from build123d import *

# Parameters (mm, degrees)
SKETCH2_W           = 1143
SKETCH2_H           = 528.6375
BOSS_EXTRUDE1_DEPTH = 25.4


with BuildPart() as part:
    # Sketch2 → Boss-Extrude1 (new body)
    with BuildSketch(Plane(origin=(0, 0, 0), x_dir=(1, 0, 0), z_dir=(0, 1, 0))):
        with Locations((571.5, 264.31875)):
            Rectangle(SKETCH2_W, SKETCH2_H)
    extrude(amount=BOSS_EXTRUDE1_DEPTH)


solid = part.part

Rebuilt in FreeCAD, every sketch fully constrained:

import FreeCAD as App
import Part
import Sketcher
Q = App.Units.Quantity

doc = App.newDocument("Part")
body = doc.addObject("PartDesign::Body", "Body")

sketch1 = body.newObject("Sketcher::SketchObject", "Sketch")
sketch1.AttachmentSupport = (doc.getObject("XZ_Plane"), [""])
sketch1.MapMode = "FlatFace"
sketch1.addGeometry([
    Part.LineSegment(App.Vector(0, -529, 0), App.Vector(0, 0, 0)),
    Part.LineSegment(App.Vector(0, 0, 0), App.Vector(1143, 0, 0)),
    Part.LineSegment(App.Vector(1143, 0, 0), App.Vector(1143, -529, 0)),
    Part.LineSegment(App.Vector(1143, -529, 0), App.Vector(0, -529, 0)),
], False)
sketch1.addConstraint([
    Sketcher.Constraint("Coincident", 0, 2, 1, 1),
    Sketcher.Constraint("Coincident", 1, 2, 2, 1),
    Sketcher.Constraint("Coincident", 2, 2, 3, 1),
    Sketcher.Constraint("Coincident", 3, 2, 0, 1),
    Sketcher.Constraint("Vertical", 0),
    Sketcher.Constraint("Horizontal", 1),
    Sketcher.Constraint("Vertical", 2),
    Sketcher.Constraint("Horizontal", 3),
    Sketcher.Constraint("Coincident", 0, 2, -1, 1),
    Sketcher.Constraint("DistanceX", 1, 1, 1, 2, Q("45 in")),
    Sketcher.Constraint("DistanceY", 0, 1, 0, 2, Q("20.8125 in")),
])
pad1 = body.newObject("PartDesign::Pad", "Pad")
pad1.Profile = sketch1
pad1.Length = Q("1 in")
pad1.Reversed = True

doc.recompute()
